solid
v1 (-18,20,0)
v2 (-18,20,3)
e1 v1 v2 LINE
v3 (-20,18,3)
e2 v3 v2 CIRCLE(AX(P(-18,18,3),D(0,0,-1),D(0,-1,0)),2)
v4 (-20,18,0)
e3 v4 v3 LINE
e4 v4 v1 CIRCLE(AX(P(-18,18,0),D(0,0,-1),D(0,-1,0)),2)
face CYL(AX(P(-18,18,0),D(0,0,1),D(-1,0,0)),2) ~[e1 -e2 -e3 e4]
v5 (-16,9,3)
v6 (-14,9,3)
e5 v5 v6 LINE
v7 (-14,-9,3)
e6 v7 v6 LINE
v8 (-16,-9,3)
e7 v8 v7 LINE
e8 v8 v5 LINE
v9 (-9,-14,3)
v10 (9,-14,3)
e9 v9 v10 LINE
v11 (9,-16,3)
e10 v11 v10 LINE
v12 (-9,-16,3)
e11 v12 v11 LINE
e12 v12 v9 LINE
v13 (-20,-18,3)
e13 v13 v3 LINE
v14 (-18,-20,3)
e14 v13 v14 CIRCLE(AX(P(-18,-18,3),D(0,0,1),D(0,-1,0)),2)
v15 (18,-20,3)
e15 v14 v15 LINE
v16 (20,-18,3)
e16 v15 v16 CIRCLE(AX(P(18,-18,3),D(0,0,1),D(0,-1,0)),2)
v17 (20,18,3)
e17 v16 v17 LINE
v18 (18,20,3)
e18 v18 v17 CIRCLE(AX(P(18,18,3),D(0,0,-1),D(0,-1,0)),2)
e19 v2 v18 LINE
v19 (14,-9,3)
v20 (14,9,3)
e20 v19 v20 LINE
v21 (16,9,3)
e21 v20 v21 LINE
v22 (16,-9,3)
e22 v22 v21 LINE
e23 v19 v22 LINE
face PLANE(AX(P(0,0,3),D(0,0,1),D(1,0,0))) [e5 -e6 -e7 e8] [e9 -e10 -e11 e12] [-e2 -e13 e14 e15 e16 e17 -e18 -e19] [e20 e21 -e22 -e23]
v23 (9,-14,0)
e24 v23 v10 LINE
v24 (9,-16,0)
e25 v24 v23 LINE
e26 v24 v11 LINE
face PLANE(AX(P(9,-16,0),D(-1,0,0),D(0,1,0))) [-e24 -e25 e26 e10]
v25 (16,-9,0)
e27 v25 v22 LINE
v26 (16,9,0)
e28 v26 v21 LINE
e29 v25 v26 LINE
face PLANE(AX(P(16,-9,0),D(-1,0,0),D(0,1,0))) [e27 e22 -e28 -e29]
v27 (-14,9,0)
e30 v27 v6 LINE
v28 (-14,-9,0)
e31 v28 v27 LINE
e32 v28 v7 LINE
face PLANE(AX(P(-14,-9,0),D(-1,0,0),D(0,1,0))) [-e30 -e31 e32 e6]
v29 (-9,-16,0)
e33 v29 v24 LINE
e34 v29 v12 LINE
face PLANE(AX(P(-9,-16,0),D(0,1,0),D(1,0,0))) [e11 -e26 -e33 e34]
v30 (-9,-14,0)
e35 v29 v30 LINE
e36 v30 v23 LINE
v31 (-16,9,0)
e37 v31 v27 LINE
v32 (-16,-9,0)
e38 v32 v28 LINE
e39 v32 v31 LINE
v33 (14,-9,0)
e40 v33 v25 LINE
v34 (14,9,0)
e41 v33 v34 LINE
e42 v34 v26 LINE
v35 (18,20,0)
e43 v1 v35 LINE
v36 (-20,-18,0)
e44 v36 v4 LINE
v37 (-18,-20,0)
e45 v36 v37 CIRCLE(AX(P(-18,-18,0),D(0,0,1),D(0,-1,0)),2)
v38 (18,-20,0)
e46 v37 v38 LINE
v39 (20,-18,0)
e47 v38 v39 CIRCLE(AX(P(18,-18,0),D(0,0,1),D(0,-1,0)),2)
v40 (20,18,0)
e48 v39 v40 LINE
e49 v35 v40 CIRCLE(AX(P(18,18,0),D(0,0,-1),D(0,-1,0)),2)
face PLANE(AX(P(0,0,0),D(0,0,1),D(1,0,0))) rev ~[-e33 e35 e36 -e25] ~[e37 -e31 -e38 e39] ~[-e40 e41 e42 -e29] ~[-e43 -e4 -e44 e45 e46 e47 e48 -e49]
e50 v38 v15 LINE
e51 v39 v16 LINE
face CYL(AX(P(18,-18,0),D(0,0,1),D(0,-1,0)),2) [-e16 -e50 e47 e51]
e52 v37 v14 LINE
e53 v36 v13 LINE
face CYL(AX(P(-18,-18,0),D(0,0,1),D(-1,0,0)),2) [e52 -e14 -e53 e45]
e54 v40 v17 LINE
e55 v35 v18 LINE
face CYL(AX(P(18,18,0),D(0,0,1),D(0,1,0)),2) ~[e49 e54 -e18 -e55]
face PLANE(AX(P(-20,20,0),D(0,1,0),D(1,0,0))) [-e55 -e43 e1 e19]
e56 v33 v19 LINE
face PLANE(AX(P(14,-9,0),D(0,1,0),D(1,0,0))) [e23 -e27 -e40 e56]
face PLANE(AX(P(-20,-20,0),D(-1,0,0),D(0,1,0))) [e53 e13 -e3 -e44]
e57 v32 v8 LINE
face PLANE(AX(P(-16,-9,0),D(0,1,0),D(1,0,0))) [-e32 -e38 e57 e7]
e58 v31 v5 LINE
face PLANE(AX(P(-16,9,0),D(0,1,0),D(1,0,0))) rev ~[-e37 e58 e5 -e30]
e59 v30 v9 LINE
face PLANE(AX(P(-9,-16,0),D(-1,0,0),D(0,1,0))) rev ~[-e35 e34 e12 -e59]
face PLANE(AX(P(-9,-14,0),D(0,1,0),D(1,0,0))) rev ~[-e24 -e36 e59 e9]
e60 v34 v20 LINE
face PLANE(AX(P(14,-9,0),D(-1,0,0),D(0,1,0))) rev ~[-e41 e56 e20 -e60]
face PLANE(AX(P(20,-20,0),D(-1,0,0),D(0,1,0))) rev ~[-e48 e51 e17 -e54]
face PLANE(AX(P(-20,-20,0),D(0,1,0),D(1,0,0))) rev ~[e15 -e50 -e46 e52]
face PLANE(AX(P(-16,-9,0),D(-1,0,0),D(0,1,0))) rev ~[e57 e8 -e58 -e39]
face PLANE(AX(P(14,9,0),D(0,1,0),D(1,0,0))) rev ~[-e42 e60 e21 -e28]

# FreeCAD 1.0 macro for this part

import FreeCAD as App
import Part
import Sketcher

V = App.Vector
Q = App.Units.Quantity


def edges_at(feature, points):
    """Names of the edges that pass closest to the given points."""
    edges = feature.Shape.Edges
    near = lambda p: min(range(len(edges)), key=lambda i: edges[i].distToShape(Part.Vertex(*p))[0])
    return sorted({f"Edge{near(p) + 1}" for p in points})


def add_polygon(sketch, points):
    """Adds a closed chain of lines whose ends are joined by coincident constraints."""
    first, n = sketch.GeometryCount, len(points)
    for a, b in zip(points, points[1:] + points[:1]):
        sketch.addGeometry(Part.LineSegment(App.Vector(*a, 0), App.Vector(*b, 0)), False)
    for i in range(n):
        sketch.addConstraint(Sketcher.Constraint("Coincident", first + i, 2, first + (i + 1) % n, 1))

doc = App.newDocument("Part")
body = doc.addObject("PartDesign::Body", "Body")

sketch1 = body.newObject("Sketcher::SketchObject", "Sketch")
sketch1.AttachmentSupport = (doc.getObject("XY_Plane"), [""])
sketch1.MapMode = "FlatFace"
add_polygon(sketch1, [(-20, 20), (-20, -20), (20, -20), (20, 20)])
add_polygon(sketch1, [(9, -16), (-9, -16), (-9, -14), (9, -14)])
add_polygon(sketch1, [(-14, -9), (-16, -9), (-16, 9), (-14, 9)])
add_polygon(sketch1, [(16, -9), (14, -9), (14, 9), (16, 9)])
sketch1.addConstraint(Sketcher.Constraint("Vertical", 0))
sketch1.addConstraint(Sketcher.Constraint("Horizontal", 1))
sketch1.addConstraint(Sketcher.Constraint("Vertical", 2))
sketch1.addConstraint(Sketcher.Constraint("Horizontal", 3))
sketch1.addConstraint(Sketcher.Constraint("Horizontal", 4))
sketch1.addConstraint(Sketcher.Constraint("Vertical", 5))
sketch1.addConstraint(Sketcher.Constraint("Horizontal", 6))
sketch1.addConstraint(Sketcher.Constraint("Vertical", 7))
sketch1.addConstraint(Sketcher.Constraint("Horizontal", 8))
sketch1.addConstraint(Sketcher.Constraint("Vertical", 9))
sketch1.addConstraint(Sketcher.Constraint("Horizontal", 10))
sketch1.addConstraint(Sketcher.Constraint("Vertical", 11))
sketch1.addConstraint(Sketcher.Constraint("Horizontal", 12))
sketch1.addConstraint(Sketcher.Constraint("Vertical", 13))
sketch1.addConstraint(Sketcher.Constraint("Horizontal", 14))
sketch1.addConstraint(Sketcher.Constraint("Vertical", 15))
sketch1.addConstraint(Sketcher.Constraint("Symmetric", 0, 2, 2, 2, -1, 1))
sketch1.addConstraint(Sketcher.Constraint("Symmetric", 10, 2, 12, 2, -1, 1))
sketch1.addConstraint(Sketcher.Constraint("Symmetric", 8, 2, 14, 2, -1, 1))
sketch1.addConstraint(Sketcher.Constraint("Horizontal", 11, 2, 12, 2))
sketch1.addConstraint(Sketcher.Constraint("Equal", 3, 0))
sketch1.addConstraint(Sketcher.Constraint("Equal", 14, 5))
sketch1.addConstraint(Sketcher.Constraint("Equal", 6, 9))
sketch1.addConstraint(Sketcher.Constraint("DistanceX", 1, 1, 1, 2, Q("40 mm")))
sketch1.addConstraint(Sketcher.Constraint("DistanceX", 4, 2, 4, 1, Q("18 mm")))
sketch1.addConstraint(Sketcher.Constraint("DistanceX", 8, 2, 8, 1, Q("2 mm")))
sketch1.addConstraint(Sketcher.Constraint("DistanceX", 4, 2, -1, 1, Q("9 mm")))
sketch1.addConstraint(Sketcher.Constraint("DistanceY", 4, 2, -1, 1, Q("16 mm")))
sketch1.addConstraint(Sketcher.Constraint("DistanceX", 8, 2, -1, 1, Q("16 mm")))
pad1 = body.newObject("PartDesign::Pad", "Pad")
pad1.Profile = sketch1
pad1.Length = 3
doc.recompute()

fillet = body.newObject("PartDesign::Fillet", "Fillet")
fillet.Base = (pad1, edges_at(pad1, [
    (20, -20, 1.5),
    (-20, -20, 1.5),
    (-20, 20, 1.5),
    (20, 20, 1.5),
]))
fillet.Radius = 2

doc.recompute()
